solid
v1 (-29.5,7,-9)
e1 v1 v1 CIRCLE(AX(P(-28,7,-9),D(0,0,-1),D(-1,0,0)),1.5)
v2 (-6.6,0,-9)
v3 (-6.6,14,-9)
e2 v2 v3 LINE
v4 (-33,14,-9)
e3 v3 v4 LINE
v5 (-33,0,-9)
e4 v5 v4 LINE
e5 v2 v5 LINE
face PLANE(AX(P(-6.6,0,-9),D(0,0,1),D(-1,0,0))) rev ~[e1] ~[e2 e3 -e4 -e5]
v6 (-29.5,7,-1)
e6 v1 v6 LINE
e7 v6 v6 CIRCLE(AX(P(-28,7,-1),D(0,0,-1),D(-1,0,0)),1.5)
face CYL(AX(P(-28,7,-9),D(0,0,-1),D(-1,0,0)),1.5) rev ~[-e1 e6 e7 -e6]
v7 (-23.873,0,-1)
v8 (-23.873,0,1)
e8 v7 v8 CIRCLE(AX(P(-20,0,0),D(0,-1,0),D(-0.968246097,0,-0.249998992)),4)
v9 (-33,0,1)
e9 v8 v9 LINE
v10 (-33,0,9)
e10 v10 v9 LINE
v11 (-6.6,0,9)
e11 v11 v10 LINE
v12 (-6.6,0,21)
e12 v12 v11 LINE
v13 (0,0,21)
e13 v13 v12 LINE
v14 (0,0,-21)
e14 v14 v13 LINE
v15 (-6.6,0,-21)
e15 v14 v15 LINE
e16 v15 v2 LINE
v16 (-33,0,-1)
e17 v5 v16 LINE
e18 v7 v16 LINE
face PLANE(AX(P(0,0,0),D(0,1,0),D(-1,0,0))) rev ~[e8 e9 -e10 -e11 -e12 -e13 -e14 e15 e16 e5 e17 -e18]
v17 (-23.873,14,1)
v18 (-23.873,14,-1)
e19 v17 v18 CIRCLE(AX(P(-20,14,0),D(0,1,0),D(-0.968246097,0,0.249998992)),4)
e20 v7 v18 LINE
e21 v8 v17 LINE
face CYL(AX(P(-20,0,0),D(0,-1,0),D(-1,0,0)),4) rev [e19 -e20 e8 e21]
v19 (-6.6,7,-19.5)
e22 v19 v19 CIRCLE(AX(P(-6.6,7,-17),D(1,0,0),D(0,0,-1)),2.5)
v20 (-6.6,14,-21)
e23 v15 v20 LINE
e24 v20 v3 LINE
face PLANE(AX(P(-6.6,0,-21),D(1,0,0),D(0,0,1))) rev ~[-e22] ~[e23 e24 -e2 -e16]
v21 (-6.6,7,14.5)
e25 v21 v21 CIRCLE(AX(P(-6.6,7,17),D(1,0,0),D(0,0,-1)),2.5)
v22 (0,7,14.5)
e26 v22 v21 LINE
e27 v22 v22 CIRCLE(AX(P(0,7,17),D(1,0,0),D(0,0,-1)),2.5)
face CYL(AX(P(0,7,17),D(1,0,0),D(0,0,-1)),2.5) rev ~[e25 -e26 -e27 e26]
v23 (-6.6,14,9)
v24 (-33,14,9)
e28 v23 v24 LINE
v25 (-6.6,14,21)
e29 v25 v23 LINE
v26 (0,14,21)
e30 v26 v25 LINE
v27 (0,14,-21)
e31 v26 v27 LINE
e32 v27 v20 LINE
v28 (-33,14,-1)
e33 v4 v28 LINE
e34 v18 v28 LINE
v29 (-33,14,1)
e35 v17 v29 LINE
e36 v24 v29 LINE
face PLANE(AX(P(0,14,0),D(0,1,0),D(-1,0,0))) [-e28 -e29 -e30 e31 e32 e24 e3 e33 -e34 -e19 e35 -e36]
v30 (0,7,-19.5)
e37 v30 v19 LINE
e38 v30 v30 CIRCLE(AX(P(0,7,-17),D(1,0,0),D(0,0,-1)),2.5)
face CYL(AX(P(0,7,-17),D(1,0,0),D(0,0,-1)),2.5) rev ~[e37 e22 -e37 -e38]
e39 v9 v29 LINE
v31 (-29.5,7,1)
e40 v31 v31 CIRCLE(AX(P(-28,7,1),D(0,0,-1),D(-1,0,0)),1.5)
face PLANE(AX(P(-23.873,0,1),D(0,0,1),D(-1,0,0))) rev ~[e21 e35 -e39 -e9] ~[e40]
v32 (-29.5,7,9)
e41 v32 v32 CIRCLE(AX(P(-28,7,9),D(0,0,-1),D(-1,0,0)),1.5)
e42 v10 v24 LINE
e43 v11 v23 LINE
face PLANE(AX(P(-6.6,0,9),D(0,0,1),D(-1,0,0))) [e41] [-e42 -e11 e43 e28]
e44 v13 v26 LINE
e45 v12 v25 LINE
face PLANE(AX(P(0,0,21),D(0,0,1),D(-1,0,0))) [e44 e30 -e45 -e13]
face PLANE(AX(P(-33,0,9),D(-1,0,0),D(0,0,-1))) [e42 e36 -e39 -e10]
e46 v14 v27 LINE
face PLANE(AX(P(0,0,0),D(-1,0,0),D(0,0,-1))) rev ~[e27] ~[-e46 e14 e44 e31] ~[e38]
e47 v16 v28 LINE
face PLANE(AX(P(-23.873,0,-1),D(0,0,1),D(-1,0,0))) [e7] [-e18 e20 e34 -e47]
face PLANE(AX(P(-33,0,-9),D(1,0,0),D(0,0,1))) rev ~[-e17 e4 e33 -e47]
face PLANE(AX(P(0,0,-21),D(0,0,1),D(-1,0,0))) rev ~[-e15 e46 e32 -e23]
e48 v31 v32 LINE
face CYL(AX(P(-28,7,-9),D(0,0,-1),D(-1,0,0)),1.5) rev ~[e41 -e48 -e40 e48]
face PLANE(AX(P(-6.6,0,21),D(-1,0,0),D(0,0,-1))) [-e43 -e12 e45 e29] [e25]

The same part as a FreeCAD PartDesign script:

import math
import FreeCAD as App
import Part
import Sketcher

V = App.Vector
Q = App.Units.Quantity

doc = App.newDocument("Part")
body = doc.addObject("PartDesign::Body", "Body")

# Sketch on XZ plane
sketch1 = body.newObject("Sketcher::SketchObject", "Sketch")
sketch1.AttachmentSupport = (doc.getObject("XZ_Plane"), [""])
sketch1.MapMode = "FlatFace"
sketch1.addGeometry([
    Part.ArcOfCircle(Part.Circle(V(-20, 0, 0), V(0, 0, 1), 4), math.radians(-166), math.radians(166)),  # 0
    Part.LineSegment(V(-23.9, 1, 0), V(-33, 1, 0)),  # 1
    Part.LineSegment(V(-33, 1, 0), V(-33, 9, 0)),  # 2
    Part.LineSegment(V(-33, 9, 0), V(-6.6, 9, 0)),  # 3
    Part.LineSegment(V(-6.6, 9, 0), V(-6.6, 21, 0)),  # 4
    Part.LineSegment(V(-6.6, 21, 0), V(0, 21, 0)),  # 5
    Part.LineSegment(V(0, 21, 0), V(0, -21, 0)),  # 6
    Part.LineSegment(V(0, -21, 0), V(-6.6, -21, 0)),  # 7
    Part.LineSegment(V(-6.6, -21, 0), V(-6.6, -9, 0)),  # 8
    Part.LineSegment(V(-6.6, -9, 0), V(-33, -9, 0)),  # 9
    Part.LineSegment(V(-33, -9, 0), V(-33, -1, 0)),  # 10
    Part.LineSegment(V(-33, -1, 0), V(-23.9, -1, 0)),  # 11
], False)
sketch1.addConstraint([
    Sketcher.Constraint("Coincident", 0, 2, 1, 1),
    Sketcher.Constraint("Coincident", 1, 2, 2, 1),
    Sketcher.Constraint("Coincident", 2, 2, 3, 1),
    Sketcher.Constraint("Coincident", 3, 2, 4, 1),
    Sketcher.Constraint("Coincident", 4, 2, 5, 1),
    Sketcher.Constraint("Coincident", 5, 2, 6, 1),
    Sketcher.Constraint("Coincident", 6, 2, 7, 1),
    Sketcher.Constraint("Coincident", 7, 2, 8, 1),
    Sketcher.Constraint("Coincident", 8, 2, 9, 1),
    Sketcher.Constraint("Coincident", 9, 2, 10, 1),
    Sketcher.Constraint("Coincident", 10, 2, 11, 1),
    Sketcher.Constraint("Coincident", 11, 2, 0, 1),
    Sketcher.Constraint("Horizontal", 1),
    Sketcher.Constraint("Vertical", 2),
    Sketcher.Constraint("Horizontal", 3),
    Sketcher.Constraint("Vertical", 4),
    Sketcher.Constraint("Horizontal", 5),
    Sketcher.Constraint("Vertical", 6),
    Sketcher.Constraint("Horizontal", 7),
    Sketcher.Constraint("Vertical", 8),
    Sketcher.Constraint("Horizontal", 9),
    Sketcher.Constraint("Vertical", 10),
    Sketcher.Constraint("Horizontal", 11),
    Sketcher.Constraint("Symmetric", 5, 2, 6, 2, -1, 1),
    Sketcher.Constraint("Symmetric", 3, 2, 8, 2, -1),
    Sketcher.Constraint("Symmetric", 1, 2, 10, 2, -1),
    Sketcher.Constraint("PointOnObject", 0, 3, -1),
    Sketcher.Constraint("Radius", 0, Q("4 mm")),
    Sketcher.Constraint("DistanceY", 2, 1, 2, 2, Q("8 mm")),
    Sketcher.Constraint("DistanceX", 5, 1, 5, 2, Q("6.6 mm")),
    Sketcher.Constraint("DistanceX", 0, 3, -1, 1, Q("20 mm")),
    Sketcher.Constraint("DistanceY", -1, 1, 0, 2, Q("1 mm")),
    Sketcher.Constraint("DistanceX", 1, 2, -1, 1, Q("33 mm")),
    Sketcher.Constraint("DistanceY", -1, 1, 4, 2, Q("21 mm")),
])
pad1 = body.newObject("PartDesign::Pad", "Pad")
pad1.Profile = sketch1
pad1.Length = 14
pad1.Reversed = True

# Sketch on YZ plane
sketch2 = body.newObject("Sketcher::SketchObject", "Sketch001")
sketch2.AttachmentSupport = (doc.getObject("YZ_Plane"), [""])
sketch2.MapMode = "FlatFace"
sketch2.addGeometry([
    Part.Circle(V(7, -17, 0), V(0, 0, 1), 2.5),
    Part.Circle(V(7, 17, 0), V(0, 0, 1), 2.5),
], False)
sketch2.addConstraint([
    Sketcher.Constraint("Equal", 0, 1),
    Sketcher.Constraint("Symmetric", 0, 3, 1, 3, -1),
    Sketcher.Constraint("Diameter", 0, Q("5 mm")),
    Sketcher.Constraint("DistanceX", -1, 1, 0, 3, Q("7 mm")),
    Sketcher.Constraint("DistanceY", 0, 3, -1, 1, Q("17 mm")),
])
pocket1 = body.newObject("PartDesign::Pocket", "Pocket")
pocket1.Profile = sketch2
pocket1.Length = 14

# Sketch on XY plane
sketch3 = body.newObject("Sketcher::SketchObject", "Sketch002")
sketch3.AttachmentSupport = (doc.getObject("XY_Plane"), [""])
sketch3.MapMode = "FlatFace"
sketch3.AttachmentOffset = App.Placement(V(0, 0, -9), App.Rotation())
sketch3.addGeometry(Part.Circle(V(-28, 7, 0), V(0, 0, 1), 1.5), False)
sketch3.addConstraint([
    Sketcher.Constraint("Diameter", 0, Q("3 mm")),
    Sketcher.Constraint("DistanceX", 0, 3, -1, 1, Q("28 mm")),
    Sketcher.Constraint("DistanceY", -1, 1, 0, 3, Q("7 mm")),
])
pocket2 = body.newObject("PartDesign::Pocket", "Pocket001")
pocket2.Profile = sketch3
pocket2.Length = 18
pocket2.Reversed = True

doc.recompute()
